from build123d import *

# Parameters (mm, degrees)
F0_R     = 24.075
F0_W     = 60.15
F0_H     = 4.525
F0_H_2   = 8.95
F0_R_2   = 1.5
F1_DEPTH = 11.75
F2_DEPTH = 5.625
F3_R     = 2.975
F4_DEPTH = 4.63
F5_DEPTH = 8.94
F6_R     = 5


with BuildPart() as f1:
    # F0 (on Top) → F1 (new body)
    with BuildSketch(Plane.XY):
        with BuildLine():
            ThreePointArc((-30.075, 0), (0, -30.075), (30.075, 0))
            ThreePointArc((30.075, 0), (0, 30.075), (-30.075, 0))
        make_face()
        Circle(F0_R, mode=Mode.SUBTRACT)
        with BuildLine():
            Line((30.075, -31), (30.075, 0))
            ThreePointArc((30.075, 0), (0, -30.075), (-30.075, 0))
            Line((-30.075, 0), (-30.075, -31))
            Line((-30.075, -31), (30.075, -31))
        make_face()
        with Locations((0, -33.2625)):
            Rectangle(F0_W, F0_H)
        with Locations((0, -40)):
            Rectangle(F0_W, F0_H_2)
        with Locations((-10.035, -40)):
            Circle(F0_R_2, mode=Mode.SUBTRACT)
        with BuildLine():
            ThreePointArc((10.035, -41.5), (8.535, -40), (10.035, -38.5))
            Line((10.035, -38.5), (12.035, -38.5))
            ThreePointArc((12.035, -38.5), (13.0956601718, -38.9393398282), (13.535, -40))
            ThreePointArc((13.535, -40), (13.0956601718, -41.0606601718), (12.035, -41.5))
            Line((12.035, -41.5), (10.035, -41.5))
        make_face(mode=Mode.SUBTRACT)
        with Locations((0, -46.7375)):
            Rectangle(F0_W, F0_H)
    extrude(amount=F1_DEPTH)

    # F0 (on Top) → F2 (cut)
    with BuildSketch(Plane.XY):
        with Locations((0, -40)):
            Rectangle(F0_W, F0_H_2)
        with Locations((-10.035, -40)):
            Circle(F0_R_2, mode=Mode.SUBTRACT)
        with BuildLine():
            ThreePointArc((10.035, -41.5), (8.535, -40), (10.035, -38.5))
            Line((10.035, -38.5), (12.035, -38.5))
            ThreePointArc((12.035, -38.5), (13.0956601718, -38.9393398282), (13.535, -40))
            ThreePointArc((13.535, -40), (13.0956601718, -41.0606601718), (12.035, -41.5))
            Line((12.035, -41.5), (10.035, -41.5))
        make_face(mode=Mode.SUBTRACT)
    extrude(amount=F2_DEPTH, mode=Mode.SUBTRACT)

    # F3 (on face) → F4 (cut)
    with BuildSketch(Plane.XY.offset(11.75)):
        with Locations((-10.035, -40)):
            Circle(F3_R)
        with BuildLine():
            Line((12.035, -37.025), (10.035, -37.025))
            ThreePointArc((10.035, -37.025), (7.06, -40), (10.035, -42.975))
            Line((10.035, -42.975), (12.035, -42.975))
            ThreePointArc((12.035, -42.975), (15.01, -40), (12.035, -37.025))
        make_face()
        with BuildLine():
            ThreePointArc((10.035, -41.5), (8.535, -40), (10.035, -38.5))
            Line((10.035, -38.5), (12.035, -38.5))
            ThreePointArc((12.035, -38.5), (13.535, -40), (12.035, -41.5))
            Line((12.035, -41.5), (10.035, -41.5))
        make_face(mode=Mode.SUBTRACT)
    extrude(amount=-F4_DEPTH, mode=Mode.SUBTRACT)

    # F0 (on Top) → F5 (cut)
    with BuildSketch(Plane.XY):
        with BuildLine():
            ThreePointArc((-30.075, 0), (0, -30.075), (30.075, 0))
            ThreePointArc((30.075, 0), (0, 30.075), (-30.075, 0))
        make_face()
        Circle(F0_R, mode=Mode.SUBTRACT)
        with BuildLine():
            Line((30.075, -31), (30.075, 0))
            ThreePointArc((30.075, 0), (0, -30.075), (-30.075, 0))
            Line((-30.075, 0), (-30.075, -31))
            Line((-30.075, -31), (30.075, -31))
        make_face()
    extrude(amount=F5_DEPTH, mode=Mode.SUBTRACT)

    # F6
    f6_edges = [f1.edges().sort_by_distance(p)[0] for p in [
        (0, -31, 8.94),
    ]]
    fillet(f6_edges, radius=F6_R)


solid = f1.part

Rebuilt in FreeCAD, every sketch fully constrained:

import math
import FreeCAD as App
import Part
import Sketcher

V = App.Vector
Q = App.Units.Quantity


def edges_at(feature, points):
    """Names of the edges that pass closest to the given points."""
    edges = feature.Shape.Edges
    near = lambda p: min(range(len(edges)), key=lambda i: edges[i].distToShape(Part.Vertex(*p))[0])
    return sorted({f"Edge{near(p) + 1}" for p in points})


def add_polygon(sketch, points):
    """Adds a closed chain of lines whose ends are joined by coincident constraints."""
    first, n = sketch.GeometryCount, len(points)
    for a, b in zip(points, points[1:] + points[:1]):
        sketch.addGeometry(Part.LineSegment(App.Vector(*a, 0), App.Vector(*b, 0)), False)
    for i in range(n):
        sketch.addConstraint(Sketcher.Constraint("Coincident", first + i, 2, first + (i + 1) % n, 1))

doc = App.newDocument("Part")
body = doc.addObject("PartDesign::Body", "Body")

# Sketch on XY plane
sketch1 = body.newObject("Sketcher::SketchObject", "Sketch")
sketch1.AttachmentSupport = (doc.getObject("XY_Plane"), [""])
sketch1.MapMode = "FlatFace"
sketch1.addGeometry(Part.ArcOfCircle(Part.Circle(V(0, 0, 0), V(0, 0, 1), 30.1), math.radians(0), math.radians(180)), False)
sketch1.addGeometry(Part.LineSegment(V(-30.1, 0, 0), V(-30.1, -49, 0)), False)
sketch1.addGeometry(Part.LineSegment(V(-30.1, -49, 0), V(30.1, -49, 0)), False)
sketch1.addGeometry(Part.LineSegment(V(30.1, -49, 0), V(30.1, 0, 0)), False)
sketch1.addGeometry(Part.Circle(V(-10, -40, 0), V(0, 0, 1), 1.5), False)
sketch1.addGeometry(Part.LineSegment(V(12, -41.5, 0), V(10, -41.5, 0)), False)
sketch1.addGeometry(Part.ArcOfCircle(Part.Circle(V(10, -40, 0), V(0, 0, 1), 1.5), math.radians(90), math.radians(270)), False)
sketch1.addGeometry(Part.LineSegment(V(10, -38.5, 0), V(12, -38.5, 0)), False)
sketch1.addGeometry(Part.ArcOfCircle(Part.Circle(V(12, -40, 0), V(0, 0, 1), 1.5), math.radians(0), math.radians(90)), False)
sketch1.addGeometry(Part.ArcOfCircle(Part.Circle(V(12, -40, 0), V(0, 0, 1), 1.5), math.radians(-90), math.radians(0)), False)
sketch1.addGeometry(Part.Circle(V(0, 0, 0), V(0, 0, 1), 24.1), False)
sketch1.addConstraint(Sketcher.Constraint("Tangent", 0, 2, 1, 1))
sketch1.addConstraint(Sketcher.Constraint("Coincident", 1, 2, 2, 1))
sketch1.addConstraint(Sketcher.Constraint("Coincident", 2, 2, 3, 1))
sketch1.addConstraint(Sketcher.Constraint("Tangent", 3, 2, 0, 1))
sketch1.addConstraint(Sketcher.Constraint("Tangent", 5, 2, 6, 2))
sketch1.addConstraint(Sketcher.Constraint("Tangent", 6, 1, 7, 1))
sketch1.addConstraint(Sketcher.Constraint("Tangent", 7, 2, 8, 2))
sketch1.addConstraint(Sketcher.Constraint("Tangent", 8, 1, 9, 2))
sketch1.addConstraint(Sketcher.Constraint("Tangent", 9, 1, 5, 1))
sketch1.addConstraint(Sketcher.Constraint("Vertical", 1))
sketch1.addConstraint(Sketcher.Constraint("Horizontal", 2))
sketch1.addConstraint(Sketcher.Constraint("Vertical", 3))
sketch1.addConstraint(Sketcher.Constraint("Horizontal", 5))
sketch1.addConstraint(Sketcher.Constraint("Horizontal", 7))
sketch1.addConstraint(Sketcher.Constraint("Coincident", 0, 3, -1, 1))
sketch1.addConstraint(Sketcher.Constraint("Coincident", 10, 3, -1, 1))
sketch1.addConstraint(Sketcher.Constraint("Equal", 4, 6))
sketch1.addConstraint(Sketcher.Constraint("Equal", 6, 8))
sketch1.addConstraint(Sketcher.Constraint("Symmetric", 4, 3, 6, 3, -2))
sketch1.addConstraint(Sketcher.Constraint("Horizontal", 9, 3, 8, 1))
sketch1.addConstraint(Sketcher.Constraint("Diameter", 4, Q("3 mm")))
sketch1.addConstraint(Sketcher.Constraint("Diameter", 10, Q("48.15 mm")))
sketch1.addConstraint(Sketcher.Constraint("DistanceX", 5, 2, 5, 1, Q("2 mm")))
sketch1.addConstraint(Sketcher.Constraint("DistanceY", 1, 2, 1, 1, Q("49 mm")))
sketch1.addConstraint(Sketcher.Constraint("DistanceY", 4, 3, -1, 1, Q("40 mm")))
sketch1.addConstraint(Sketcher.Constraint("Radius", 0, Q("30.075 mm")))
sketch1.addConstraint(Sketcher.Constraint("DistanceX", 4, 3, 6, 3, Q("20.07 mm")))
pad1 = body.newObject("PartDesign::Pad", "Pad")
pad1.Profile = sketch1
pad1.Length = 11.75

# Sketch on XY plane
sketch2 = body.newObject("Sketcher::SketchObject", "Sketch001")
sketch2.AttachmentSupport = (doc.getObject("XY_Plane"), [""])
sketch2.MapMode = "FlatFace"
add_polygon(sketch2, [(-30.1, -35.5), (-30.1, -44.5), (30.1, -44.5), (30.1, -35.5)])  # lines 0-3
sketch2.addGeometry(Part.Circle(V(-10, -40, 0), V(0, 0, 1), 1.5), False)  # 4
sketch2.addGeometry(Part.LineSegment(V(12, -41.5, 0), V(10, -41.5, 0)), False)  # 5
sketch2.addGeometry(Part.ArcOfCircle(Part.Circle(V(10, -40, 0), V(0, 0, 1), 1.5), math.radians(90), math.radians(270)), False)  # 6
sketch2.addGeometry(Part.LineSegment(V(10, -38.5, 0), V(12, -38.5, 0)), False)  # 7
sketch2.addGeometry(Part.ArcOfCircle(Part.Circle(V(12, -40, 0), V(0, 0, 1), 1.5), math.radians(0), math.radians(90)), False)  # 8
sketch2.addGeometry(Part.ArcOfCircle(Part.Circle(V(12, -40, 0), V(0, 0, 1), 1.5), math.radians(-90), math.radians(0)), False)  # 9
sketch2.addConstraint(Sketcher.Constraint("Tangent", 5, 2, 6, 2))
sketch2.addConstraint(Sketcher.Constraint("Tangent", 6, 1, 7, 1))
sketch2.addConstraint(Sketcher.Constraint("Tangent", 7, 2, 8, 2))
sketch2.addConstraint(Sketcher.Constraint("Tangent", 8, 1, 9, 2))
sketch2.addConstraint(Sketcher.Constraint("Tangent", 9, 1, 5, 1))
sketch2.addConstraint(Sketcher.Constraint("Vertical", 0))
sketch2.addConstraint(Sketcher.Constraint("Horizontal", 1))
sketch2.addConstraint(Sketcher.Constraint("Vertical", 2))
sketch2.addConstraint(Sketcher.Constraint("Horizontal", 3))
sketch2.addConstraint(Sketcher.Constraint("Horizontal", 5))
sketch2.addConstraint(Sketcher.Constraint("Horizontal", 7))
sketch2.addConstraint(Sketcher.Constraint("Equal", 4, 6))
sketch2.addConstraint(Sketcher.Constraint("Equal", 6, 8))
sketch2.addConstraint(Sketcher.Constraint("Symmetric", 4, 3, 6, 3, -2))
sketch2.addConstraint(Sketcher.Constraint("Horizontal", 9, 3, 8, 1))
sketch2.addConstraint(Sketcher.Constraint("Diameter", 4, Q("3 mm")))
sketch2.addConstraint(Sketcher.Constraint("DistanceX", 5, 2, 5, 1, Q("2 mm")))
sketch2.addConstraint(Sketcher.Constraint("DistanceY", 4, 3, -1, 1, Q("40 mm")))
sketch2.addConstraint(Sketcher.Constraint("DistanceX", 1, 1, 1, 2, Q("60.15 mm")))
sketch2.addConstraint(Sketcher.Constraint("DistanceY", 0, 2, 0, 1, Q("8.95 mm")))
sketch2.addConstraint(Sketcher.Constraint("DistanceX", 4, 3, 6, 3, Q("20.07 mm")))
sketch2.addConstraint(Sketcher.Constraint("DistanceX", 0, 2, 4, 3, Q("20.04 mm")))
sketch2.addConstraint(Sketcher.Constraint("DistanceY", 0, 2, -1, 1, Q("44.475 mm")))
pocket1 = body.newObject("PartDesign::Pocket", "Pocket")
pocket1.Profile = sketch2
pocket1.Length = 5.625
pocket1.Reversed = True

# Sketch on XY plane
sketch3 = body.newObject("Sketcher::SketchObject", "Sketch002")
sketch3.AttachmentSupport = (doc.getObject("XY_Plane"), [""])
sketch3.MapMode = "FlatFace"
sketch3.AttachmentOffset = App.Placement(V(0, 0, 11.75), App.Rotation())
sketch3.addGeometry(Part.Circle(V(-10, -40, 0), V(0, 0, 1), 3), False)
sketch3.addGeometry(Part.LineSegment(V(12, -37, 0), V(10, -37, 0)), False)
sketch3.addGeometry(Part.ArcOfCircle(Part.Circle(V(10, -40, 0), V(0, 0, 1), 3), math.radians(90), math.radians(270)), False)
sketch3.addGeometry(Part.LineSegment(V(10, -43, 0), V(12, -43, 0)), False)
sketch3.addGeometry(Part.ArcOfCircle(Part.Circle(V(12, -40, 0), V(0, 0, 1), 3), math.radians(-90), math.radians(90)), False)
sketch3.addGeometry(Part.LineSegment(V(12, -41.5, 0), V(10, -41.5, 0)), False)
sketch3.addGeometry(Part.ArcOfCircle(Part.Circle(V(10, -40, 0), V(0, 0, 1), 1.5), math.radians(90), math.radians(270)), False)
sketch3.addGeometry(Part.LineSegment(V(10, -38.5, 0), V(12, -38.5, 0)), False)
sketch3.addGeometry(Part.ArcOfCircle(Part.Circle(V(12, -40, 0), V(0, 0, 1), 1.5), math.radians(-90), math.radians(90)), False)
sketch3.addConstraint(Sketcher.Constraint("Tangent", 1, 2, 2, 1))
sketch3.addConstraint(Sketcher.Constraint("Tangent", 2, 2, 3, 1))
sketch3.addConstraint(Sketcher.Constraint("Tangent", 3, 2, 4, 1))
sketch3.addConstraint(Sketcher.Constraint("Tangent", 4, 2, 1, 1))
sketch3.addConstraint(Sketcher.Constraint("Tangent", 5, 2, 6, 2))
sketch3.addConstraint(Sketcher.Constraint("Tangent", 6, 1, 7, 1))
sketch3.addConstraint(Sketcher.Constraint("Tangent", 7, 2, 8, 2))
sketch3.addConstraint(Sketcher.Constraint("Tangent", 8, 1, 5, 1))
sketch3.addConstraint(Sketcher.Constraint("Horizontal", 1))
sketch3.addConstraint(Sketcher.Constraint("Horizontal", 3))
sketch3.addConstraint(Sketcher.Constraint("Horizontal", 5))
sketch3.addConstraint(Sketcher.Constraint("Horizontal", 7))
sketch3.addConstraint(Sketcher.Constraint("Coincident", 6, 3, 2, 3))
sketch3.addConstraint(Sketcher.Constraint("Equal", 0, 2))
sketch3.addConstraint(Sketcher.Constraint("Symmetric", 0, 3, 2, 3, -2))
sketch3.addConstraint(Sketcher.Constraint("Vertical", 8, 3, 3, 2))
sketch3.addConstraint(Sketcher.Constraint("Radius", 6, Q("1.5 mm")))
sketch3.addConstraint(Sketcher.Constraint("Diameter", 0, Q("5.95 mm")))
sketch3.addConstraint(Sketcher.Constraint("DistanceX", 1, 2, 1, 1, Q("2 mm")))
sketch3.addConstraint(Sketcher.Constraint("DistanceY", 0, 3, -1, 1, Q("40 mm")))
sketch3.addConstraint(Sketcher.Constraint("DistanceX", 0, 3, 2, 3, Q("20.07 mm")))
pocket2 = body.newObject("PartDesign::Pocket", "Pocket001")
pocket2.Profile = sketch3
pocket2.Length = 4.63

# Sketch on XY plane
sketch4 = body.newObject("Sketcher::SketchObject", "Sketch003")
sketch4.AttachmentSupport = (doc.getObject("XY_Plane"), [""])
sketch4.MapMode = "FlatFace"
sketch4.addGeometry(Part.ArcOfCircle(Part.Circle(V(0, 0, 0), V(0, 0, 1), 30), math.radians(0), math.radians(180)), False)
sketch4.addGeometry(Part.LineSegment(V(-30, 0, 0), V(-30, -31, 0)), False)
sketch4.addGeometry(Part.LineSegment(V(-30, -31, 0), V(30, -31, 0)), False)
sketch4.addGeometry(Part.LineSegment(V(30, -31, 0), V(30, 0, 0)), False)
sketch4.addGeometry(Part.Circle(V(0, 0, 0), V(0, 0, 1), 24), False)
sketch4.addConstraint(Sketcher.Constraint("Tangent", 0, 2, 1, 1))
sketch4.addConstraint(Sketcher.Constraint("Coincident", 1, 2, 2, 1))
sketch4.addConstraint(Sketcher.Constraint("Coincident", 2, 2, 3, 1))
sketch4.addConstraint(Sketcher.Constraint("Tangent", 3, 2, 0, 1))
sketch4.addConstraint(Sketcher.Constraint("Vertical", 1))
sketch4.addConstraint(Sketcher.Constraint("Horizontal", 2))
sketch4.addConstraint(Sketcher.Constraint("Vertical", 3))
sketch4.addConstraint(Sketcher.Constraint("Coincident", 0, 3, -1, 1))
sketch4.addConstraint(Sketcher.Constraint("Coincident", 4, 3, -1, 1))
sketch4.addConstraint(Sketcher.Constraint("Diameter", 4, Q("48.15 mm")))
sketch4.addConstraint(Sketcher.Constraint("DistanceY", 1, 2, 1, 1, Q("31 mm")))
sketch4.addConstraint(Sketcher.Constraint("Radius", 0, Q("30.075 mm")))
pocket3 = body.newObject("PartDesign::Pocket", "Pocket002")
pocket3.Profile = sketch4
pocket3.Length = 8.94
pocket3.Reversed = True
doc.recompute()

fillet = body.newObject("PartDesign::Fillet", "Fillet")
fillet.Base = (pocket3, edges_at(pocket3, [(0, -31, 8.94)]))
fillet.Radius = 5

doc.recompute()
